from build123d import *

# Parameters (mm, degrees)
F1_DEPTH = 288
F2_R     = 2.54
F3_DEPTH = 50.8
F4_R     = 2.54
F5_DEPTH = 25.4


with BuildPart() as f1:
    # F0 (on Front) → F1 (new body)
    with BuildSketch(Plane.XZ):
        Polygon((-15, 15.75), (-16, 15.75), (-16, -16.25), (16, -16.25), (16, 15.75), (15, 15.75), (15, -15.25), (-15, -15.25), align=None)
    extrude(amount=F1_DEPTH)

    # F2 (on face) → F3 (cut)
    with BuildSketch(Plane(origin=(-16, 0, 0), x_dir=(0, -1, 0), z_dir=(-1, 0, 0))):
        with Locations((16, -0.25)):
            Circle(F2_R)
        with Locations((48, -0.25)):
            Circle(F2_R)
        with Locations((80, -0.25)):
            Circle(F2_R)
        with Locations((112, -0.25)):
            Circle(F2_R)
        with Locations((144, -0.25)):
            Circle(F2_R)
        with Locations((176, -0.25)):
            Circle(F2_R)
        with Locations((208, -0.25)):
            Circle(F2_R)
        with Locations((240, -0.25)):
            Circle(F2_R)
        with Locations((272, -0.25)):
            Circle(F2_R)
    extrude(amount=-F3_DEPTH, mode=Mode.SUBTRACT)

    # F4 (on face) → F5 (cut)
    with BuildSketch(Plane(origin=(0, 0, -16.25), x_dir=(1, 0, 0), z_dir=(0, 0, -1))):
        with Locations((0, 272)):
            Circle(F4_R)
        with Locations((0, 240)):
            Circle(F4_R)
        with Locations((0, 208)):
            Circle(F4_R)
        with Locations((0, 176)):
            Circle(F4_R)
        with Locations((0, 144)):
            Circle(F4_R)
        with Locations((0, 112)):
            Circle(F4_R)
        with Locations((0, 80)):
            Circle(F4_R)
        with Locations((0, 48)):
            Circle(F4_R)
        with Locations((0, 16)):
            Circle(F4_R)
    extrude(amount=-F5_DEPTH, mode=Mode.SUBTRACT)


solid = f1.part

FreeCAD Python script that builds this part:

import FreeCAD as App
import Part
import Sketcher
Q = App.Units.Quantity


def add_polygon(sketch, points):
    """Adds a closed chain of lines whose ends are joined by coincident constraints."""
    first, n = sketch.GeometryCount, len(points)
    for a, b in zip(points, points[1:] + points[:1]):
        sketch.addGeometry(Part.LineSegment(App.Vector(*a, 0), App.Vector(*b, 0)), False)
    for i in range(n):
        sketch.addConstraint(Sketcher.Constraint("Coincident", first + i, 2, first + (i + 1) % n, 1))

doc = App.newDocument("Part")
body = doc.addObject("PartDesign::Body", "Body")

# Sketch on XZ plane
sketch1 = doc.addObject("Sketcher::SketchObject", "Sketch")
body.addObject(sketch1)
sketch1.AttachmentSupport = (doc.XZ_Plane, [""])
sketch1.MapMode = "FlatFace"
add_polygon(sketch1, [(-15, 15.75), (-16, 15.75), (-16, -16.25), (16, -16.25), (16, 15.75), (15, 15.75), (15, -15.25), (-15, -15.25)])  # lines 0-7
sketch1.addConstraint([
    Sketcher.Constraint("Horizontal", 0),
    Sketcher.Constraint("Vertical", 1),
    Sketcher.Constraint("Horizontal", 2),
    Sketcher.Constraint("Vertical", 3),
    Sketcher.Constraint("Horizontal", 4),
    Sketcher.Constraint("Vertical", 5),
    Sketcher.Constraint("Horizontal", 6),
    Sketcher.Constraint("Vertical", 7),
    Sketcher.Constraint("Symmetric", 0, 2, 3, 2, -2),
    Sketcher.Constraint("Equal", 0, 4),
    Sketcher.Constraint("Equal", 2, 1),
    Sketcher.Constraint("DistanceX", 0, 2, 0, 1, Q("1 mm")),
    Sketcher.Constraint("DistanceX", 2, 1, 2, 2, Q("32 mm")),
    Sketcher.Constraint("DistanceY", 5, 2, 5, 1, Q("31 mm")),
    Sketcher.Constraint("DistanceY", -1, 1, 0, 2, Q("15.75 mm")),
])
pad1 = doc.addObject("PartDesign::Pad", "Pad")
body.addObject(pad1)
pad1.Profile = sketch1
pad1.Length = 288

# Sketch on YZ plane
sketch2 = doc.addObject("Sketcher::SketchObject", "Sketch001")
body.addObject(sketch2)
sketch2.AttachmentSupport = (doc.YZ_Plane, [""])
sketch2.MapMode = "FlatFace"
sketch2.AttachmentOffset = App.Placement(App.Vector(0, 0, -16), App.Rotation())
sketch2.addGeometry([
    Part.Circle(App.Vector(-16, -0.25, 0), App.Vector(0, 0, 1), 2.54),  # 0
    Part.Circle(App.Vector(-48, -0.25, 0), App.Vector(0, 0, 1), 2.54),  # 1
    Part.Circle(App.Vector(-80, -0.25, 0), App.Vector(0, 0, 1), 2.54),  # 2
    Part.Circle(App.Vector(-112, -0.25, 0), App.Vector(0, 0, 1), 2.54),  # 3
    Part.Circle(App.Vector(-144, -0.25, 0), App.Vector(0, 0, 1), 2.54),  # 4
    Part.Circle(App.Vector(-176, -0.25, 0), App.Vector(0, 0, 1), 2.54),  # 5
    Part.Circle(App.Vector(-208, -0.25, 0), App.Vector(0, 0, 1), 2.54),  # 6
    Part.Circle(App.Vector(-240, -0.25, 0), App.Vector(0, 0, 1), 2.54),  # 7
    Part.Circle(App.Vector(-272, -0.25, 0), App.Vector(0, 0, 1), 2.54),  # 8
], False)
sketch2.addConstraint([
    Sketcher.Constraint("Equal", 0, 1),
    Sketcher.Constraint("Equal", 1, 2),
    Sketcher.Constraint("Equal", 2, 3),
    Sketcher.Constraint("Equal", 3, 4),
    Sketcher.Constraint("Equal", 4, 5),
    Sketcher.Constraint("Equal", 5, 6),
    Sketcher.Constraint("Equal", 6, 7),
    Sketcher.Constraint("Equal", 7, 8),
    Sketcher.Constraint("Horizontal", 0, 3, 1, 3),
    Sketcher.Constraint("Horizontal", 1, 3, 2, 3),
    Sketcher.Constraint("Horizontal", 2, 3, 3, 3),
    Sketcher.Constraint("Horizontal", 3, 3, 4, 3),
    Sketcher.Constraint("Horizontal", 4, 3, 5, 3),
    Sketcher.Constraint("Horizontal", 5, 3, 6, 3),
    Sketcher.Constraint("Horizontal", 6, 3, 7, 3),
    Sketcher.Constraint("Horizontal", 7, 3, 8, 3),
    Sketcher.Constraint("Diameter", 0, Q("5.08 mm")),
    Sketcher.Constraint("DistanceX", 0, 3, -1, 1, Q("16 mm")),
    Sketcher.Constraint("DistanceX", 1, 3, -1, 1, Q("48 mm")),
    Sketcher.Constraint("DistanceX", 2, 3, -1, 1, Q("80 mm")),
    Sketcher.Constraint("DistanceX", 3, 3, -1, 1, Q("112 mm")),
    Sketcher.Constraint("DistanceX", 4, 3, -1, 1, Q("144 mm")),
    Sketcher.Constraint("DistanceX", 5, 3, -1, 1, Q("176 mm")),
    Sketcher.Constraint("DistanceX", 6, 3, -1, 1, Q("208 mm")),
    Sketcher.Constraint("DistanceX", 7, 3, -1, 1, Q("240 mm")),
    Sketcher.Constraint("DistanceX", 8, 3, -1, 1, Q("272 mm")),
    Sketcher.Constraint("DistanceY", 0, 3, -1, 1, Q("0.25 mm")),
])
pocket1 = doc.addObject("PartDesign::Pocket", "Pocket")
body.addObject(pocket1)
pocket1.Profile = sketch2
pocket1.Length = 50.8
pocket1.Reversed = True

# Sketch on XY plane
sketch3 = doc.addObject("Sketcher::SketchObject", "Sketch002")
body.addObject(sketch3)
sketch3.AttachmentSupport = (doc.XY_Plane, [""])
sketch3.MapMode = "FlatFace"
sketch3.AttachmentOffset = App.Placement(App.Vector(0, 0, -16.25), App.Rotation())
sketch3.addGeometry([
    Part.Circle(App.Vector(0, -272, 0), App.Vector(0, 0, 1), 2.54),  # 0
    Part.Circle(App.Vector(0, -240, 0), App.Vector(0, 0, 1), 2.54),  # 1
    Part.Circle(App.Vector(0, -208, 0), App.Vector(0, 0, 1), 2.54),  # 2
    Part.Circle(App.Vector(0, -176, 0), App.Vector(0, 0, 1), 2.54),  # 3
    Part.Circle(App.Vector(0, -144, 0), App.Vector(0, 0, 1), 2.54),  # 4
    Part.Circle(App.Vector(0, -112, 0), App.Vector(0, 0, 1), 2.54),  # 5
    Part.Circle(App.Vector(0, -80, 0), App.Vector(0, 0, 1), 2.54),  # 6
    Part.Circle(App.Vector(0, -48, 0), App.Vector(0, 0, 1), 2.54),  # 7
    Part.Circle(App.Vector(0, -16, 0), App.Vector(0, 0, 1), 2.54),  # 8
], False)
sketch3.addConstraint([
    Sketcher.Constraint("Equal", 0, 1),
    Sketcher.Constraint("Equal", 1, 2),
    Sketcher.Constraint("Equal", 2, 3),
    Sketcher.Constraint("Equal", 3, 4),
    Sketcher.Constraint("Equal", 4, 5),
    Sketcher.Constraint("Equal", 5, 6),
    Sketcher.Constraint("Equal", 6, 7),
    Sketcher.Constraint("Equal", 7, 8),
    Sketcher.Constraint("PointOnObject", 0, 3, -2),
    Sketcher.Constraint("PointOnObject", 1, 3, -2),
    Sketcher.Constraint("PointOnObject", 2, 3, -2),
    Sketcher.Constraint("PointOnObject", 3, 3, -2),
    Sketcher.Constraint("PointOnObject", 4, 3, -2),
    Sketcher.Constraint("PointOnObject", 5, 3, -2),
    Sketcher.Constraint("PointOnObject", 6, 3, -2),
    Sketcher.Constraint("PointOnObject", 7, 3, -2),
    Sketcher.Constraint("PointOnObject", 8, 3, -2),
    Sketcher.Constraint("Diameter", 0, Q("5.08 mm")),
    Sketcher.Constraint("DistanceY", 0, 3, -1, 1, Q("272 mm")),
    Sketcher.Constraint("DistanceY", 1, 3, -1, 1, Q("240 mm")),
    Sketcher.Constraint("DistanceY", 2, 3, -1, 1, Q("208 mm")),
    Sketcher.Constraint("DistanceY", 3, 3, -1, 1, Q("176 mm")),
    Sketcher.Constraint("DistanceY", 4, 3, -1, 1, Q("144 mm")),
    Sketcher.Constraint("DistanceY", 5, 3, -1, 1, Q("112 mm")),
    Sketcher.Constraint("DistanceY", 6, 3, -1, 1, Q("80 mm")),
    Sketcher.Constraint("DistanceY", 7, 3, -1, 1, Q("48 mm")),
    Sketcher.Constraint("DistanceY", 8, 3, -1, 1, Q("16 mm")),
])
pocket2 = doc.addObject("PartDesign::Pocket", "Pocket001")
body.addObject(pocket2)
pocket2.Profile = sketch3
pocket2.Length = 25.4
pocket2.Reversed = True

doc.recompute()
